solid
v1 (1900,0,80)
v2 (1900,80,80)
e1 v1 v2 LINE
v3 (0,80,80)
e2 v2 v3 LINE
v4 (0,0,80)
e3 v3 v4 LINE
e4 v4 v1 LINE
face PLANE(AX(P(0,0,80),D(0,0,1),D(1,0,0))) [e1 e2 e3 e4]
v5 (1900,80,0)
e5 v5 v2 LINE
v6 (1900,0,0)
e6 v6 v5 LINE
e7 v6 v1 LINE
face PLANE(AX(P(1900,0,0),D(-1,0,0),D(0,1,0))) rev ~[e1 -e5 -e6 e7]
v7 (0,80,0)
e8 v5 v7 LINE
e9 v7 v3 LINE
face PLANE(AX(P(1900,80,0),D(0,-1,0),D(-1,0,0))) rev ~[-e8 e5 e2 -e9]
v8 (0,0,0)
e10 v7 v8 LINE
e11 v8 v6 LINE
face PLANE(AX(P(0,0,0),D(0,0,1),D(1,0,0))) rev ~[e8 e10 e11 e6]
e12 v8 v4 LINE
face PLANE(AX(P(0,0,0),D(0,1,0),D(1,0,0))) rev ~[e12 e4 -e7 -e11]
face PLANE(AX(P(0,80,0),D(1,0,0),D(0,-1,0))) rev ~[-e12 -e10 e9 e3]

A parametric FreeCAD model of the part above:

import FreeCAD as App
import Part
import Sketcher
from FreeCAD import Vector


def add_polygon(sketch, points):
    """Adds a closed chain of lines whose ends are joined by coincident constraints."""
    first, n = sketch.GeometryCount, len(points)
    for a, b in zip(points, points[1:] + points[:1]):
        sketch.addGeometry(Part.LineSegment(App.Vector(*a, 0), App.Vector(*b, 0)), False)
    for i in range(n):
        sketch.addConstraint(Sketcher.Constraint("Coincident", first + i, 2, first + (i + 1) % n, 1))

doc = App.newDocument("Part")
body = doc.addObject("PartDesign::Body", "Body")

sketch1 = body.newObject("Sketcher::SketchObject", "Sketch")
sketch1.AttachmentSupport = (doc.getObject("XY_Plane"), [""])
sketch1.MapMode = "FlatFace"
add_polygon(sketch1, [(0, 80), (0, 0), (1900, 0), (1900, 80)])
sketch1.addConstraint([
    Sketcher.Constraint("Vertical", 0),
    Sketcher.Constraint("Horizontal", 1),
    Sketcher.Constraint("Vertical", 2),
    Sketcher.Constraint("Horizontal", 3),
    Sketcher.Constraint("Coincident", 0, 2, -1, 1),
    Sketcher.Constraint("DistanceX", 1, 1, 1, 2, 1900.0),
    Sketcher.Constraint("DistanceY", 0, 2, 0, 1, 80.0),
])
pad1 = body.newObject("PartDesign::Pad", "Pad")
pad1.Profile = sketch1
pad1.Length = 80

doc.recompute()
